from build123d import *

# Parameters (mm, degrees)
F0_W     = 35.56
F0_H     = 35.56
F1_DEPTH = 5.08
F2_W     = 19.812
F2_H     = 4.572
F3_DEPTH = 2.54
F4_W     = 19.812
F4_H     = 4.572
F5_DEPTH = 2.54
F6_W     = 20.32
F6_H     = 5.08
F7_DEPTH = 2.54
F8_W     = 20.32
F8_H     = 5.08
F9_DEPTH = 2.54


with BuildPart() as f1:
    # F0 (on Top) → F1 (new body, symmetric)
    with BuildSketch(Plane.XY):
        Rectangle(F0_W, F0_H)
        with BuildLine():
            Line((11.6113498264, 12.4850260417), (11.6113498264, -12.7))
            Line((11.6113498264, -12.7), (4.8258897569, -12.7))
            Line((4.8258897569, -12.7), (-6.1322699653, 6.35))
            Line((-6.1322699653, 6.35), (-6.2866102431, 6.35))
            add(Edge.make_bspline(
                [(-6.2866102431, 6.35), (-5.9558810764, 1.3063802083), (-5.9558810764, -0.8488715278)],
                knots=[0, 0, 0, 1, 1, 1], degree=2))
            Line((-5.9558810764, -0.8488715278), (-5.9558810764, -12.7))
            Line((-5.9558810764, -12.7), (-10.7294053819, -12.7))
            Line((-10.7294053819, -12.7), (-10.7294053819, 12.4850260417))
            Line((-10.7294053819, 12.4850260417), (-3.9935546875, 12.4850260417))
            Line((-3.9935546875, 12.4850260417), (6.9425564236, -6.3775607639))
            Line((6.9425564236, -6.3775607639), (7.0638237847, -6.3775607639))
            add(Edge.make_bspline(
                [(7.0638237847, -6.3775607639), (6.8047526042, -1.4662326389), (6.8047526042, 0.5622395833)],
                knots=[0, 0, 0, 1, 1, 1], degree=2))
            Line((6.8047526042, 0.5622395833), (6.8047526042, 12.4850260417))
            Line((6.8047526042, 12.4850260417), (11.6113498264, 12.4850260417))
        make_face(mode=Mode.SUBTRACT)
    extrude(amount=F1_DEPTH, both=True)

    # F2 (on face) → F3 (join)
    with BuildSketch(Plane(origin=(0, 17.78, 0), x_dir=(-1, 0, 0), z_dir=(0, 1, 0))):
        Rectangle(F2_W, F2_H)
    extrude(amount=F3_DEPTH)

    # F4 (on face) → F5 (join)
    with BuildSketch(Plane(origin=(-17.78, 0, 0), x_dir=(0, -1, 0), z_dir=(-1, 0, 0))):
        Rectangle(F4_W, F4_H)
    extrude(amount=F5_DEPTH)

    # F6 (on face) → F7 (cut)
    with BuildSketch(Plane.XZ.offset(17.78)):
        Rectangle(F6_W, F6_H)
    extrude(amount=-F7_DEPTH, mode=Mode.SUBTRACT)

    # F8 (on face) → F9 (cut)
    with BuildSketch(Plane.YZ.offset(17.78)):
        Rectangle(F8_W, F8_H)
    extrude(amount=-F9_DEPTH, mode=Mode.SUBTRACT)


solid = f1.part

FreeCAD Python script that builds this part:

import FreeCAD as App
import Part
import Sketcher
Q = App.Units.Quantity

doc = App.newDocument("Part")
params = doc.addObject("Spreadsheet::Sheet", "Params")
for row, (alias, value) in enumerate([
    ("sketch1_width", "1.4 in"),
    ("pad1_length", "0.4 in"),
    ("sketch2_width", "0.78 in"),
    ("sketch2_height", "0.18 in"),
    ("pad2_length", "0.1 in"),
    ("sketch3_width", "0.78 in"),
    ("sketch3_height", "0.18 in"),
    ("pad3_length", "0.1 in"),
    ("sketch4_width", "0.8 in"),
    ("sketch4_height", "0.2 in"),
    ("pocket1_length", "0.1 in"),
    ("sketch5_width", "0.8 in"),
    ("sketch5_height", "0.2 in"),
    ("pocket2_length", "0.1 in"),
], start=1):
    params.set(f"A{row}", alias)
    params.set(f"B{row}", "=" + value)
    params.setAlias(f"B{row}", alias)

body = doc.addObject("PartDesign::Body", "Body")

sketch1 = body.newObject("Sketcher::SketchObject", "Sketch")
sketch1.AttachmentSupport = (doc.getObject("XY_Plane"), [""])
sketch1.MapMode = "FlatFace"
sketch1.addGeometry([
    Part.LineSegment(App.Vector(-17.78, 17.78, 0), App.Vector(-17.78, -17.78, 0)),
    Part.LineSegment(App.Vector(-17.78, -17.78, 0), App.Vector(17.78, -17.78, 0)),
    Part.LineSegment(App.Vector(17.78, -17.78, 0), App.Vector(17.78, 17.78, 0)),
    Part.LineSegment(App.Vector(17.78, 17.78, 0), App.Vector(-17.78, 17.78, 0)),
    Part.LineSegment(App.Vector(6.804753, 12.485026, 0), App.Vector(11.61135, 12.485026, 0)),
    Part.LineSegment(App.Vector(11.61135, 12.485026, 0), App.Vector(11.61135, -12.7, 0)),
    Part.LineSegment(App.Vector(11.61135, -12.7, 0), App.Vector(4.82589, -12.7, 0)),
    Part.LineSegment(App.Vector(4.82589, -12.7, 0), App.Vector(-6.13227, 6.35, 0)),
    Part.LineSegment(App.Vector(-6.13227, 6.35, 0), App.Vector(-6.28661, 6.35, 0)),
    Part.BSplineCurve([App.Vector(-6.28661, 6.35, 0), App.Vector(-5.955881, 1.30638, 0), App.Vector(-5.955881, -0.848872, 0)], [3, 3], [0, 1], False, 2, [1, 1, 1], False),
    Part.LineSegment(App.Vector(-5.955881, -0.848872, 0), App.Vector(-5.955881, -12.7, 0)),
    Part.LineSegment(App.Vector(-5.955881, -12.7, 0), App.Vector(-10.729405, -12.7, 0)),
    Part.LineSegment(App.Vector(-10.729405, -12.7, 0), App.Vector(-10.729405, 12.485026, 0)),
    Part.LineSegment(App.Vector(-10.729405, 12.485026, 0), App.Vector(-3.993555, 12.485026, 0)),
    Part.LineSegment(App.Vector(-3.993555, 12.485026, 0), App.Vector(6.942556, -6.377561, 0)),
    Part.LineSegment(App.Vector(6.942556, -6.377561, 0), App.Vector(7.063824, -6.377561, 0)),
    Part.BSplineCurve([App.Vector(7.063824, -6.377561, 0), App.Vector(6.804753, -1.466233, 0), App.Vector(6.804753, 0.56224, 0)], [3, 3], [0, 1], False, 2, [1, 1, 1], False),
    Part.LineSegment(App.Vector(6.804753, 0.56224, 0), App.Vector(6.804753, 12.485026, 0)),
], False)
sketch1.addConstraint([
    Sketcher.Constraint("Block", 9),
    Sketcher.Constraint("Block", 16),
    Sketcher.Constraint("Coincident", 0, 2, 1, 1),
    Sketcher.Constraint("Coincident", 1, 2, 2, 1),
    Sketcher.Constraint("Coincident", 2, 2, 3, 1),
    Sketcher.Constraint("Coincident", 3, 2, 0, 1),
    Sketcher.Constraint("Coincident", 4, 2, 5, 1),
    Sketcher.Constraint("Coincident", 5, 2, 6, 1),
    Sketcher.Constraint("Coincident", 6, 2, 7, 1),
    Sketcher.Constraint("Coincident", 7, 2, 8, 1),
    Sketcher.Constraint("Coincident", 8, 2, 9, 1),
    Sketcher.Constraint("Coincident", 9, 2, 10, 1),
    Sketcher.Constraint("Coincident", 10, 2, 11, 1),
    Sketcher.Constraint("Coincident", 11, 2, 12, 1),
    Sketcher.Constraint("Coincident", 12, 2, 13, 1),
    Sketcher.Constraint("Coincident", 13, 2, 14, 1),
    Sketcher.Constraint("Coincident", 14, 2, 15, 1),
    Sketcher.Constraint("Coincident", 15, 2, 16, 1),
    Sketcher.Constraint("Coincident", 16, 2, 17, 1),
    Sketcher.Constraint("Coincident", 17, 2, 4, 1),
    Sketcher.Constraint("Vertical", 0),
    Sketcher.Constraint("Horizontal", 1),
    Sketcher.Constraint("Vertical", 2),
    Sketcher.Constraint("Horizontal", 3),
    Sketcher.Constraint("Horizontal", 4),
    Sketcher.Constraint("Vertical", 5),
    Sketcher.Constraint("Horizontal", 6),
    Sketcher.Constraint("Horizontal", 8),
    Sketcher.Constraint("Vertical", 10),
    Sketcher.Constraint("Horizontal", 11),
    Sketcher.Constraint("Vertical", 12),
    Sketcher.Constraint("Horizontal", 13),
    Sketcher.Constraint("Horizontal", 15),
    Sketcher.Constraint("Vertical", 17),
    Sketcher.Constraint("Symmetric", 0, 2, 2, 2, -1, 1),
    Sketcher.Constraint("Horizontal", 6, 2, 10, 2),
    Sketcher.Constraint("Horizontal", 4, 2, 12, 2),
    Sketcher.Constraint("Equal", 3, 0),
    Sketcher.Constraint("DistanceX", 1, 1, 1, 2, Q("1.4 in")),
    Sketcher.Constraint("DistanceY", 5, 2, -1, 1, Q("0.5 in")),
    Sketcher.Constraint("DistanceX", 8, 2, 6, 2, Q("0.4375 in")),
    Sketcher.Constraint("DistanceX", 6, 2, 6, 1, Q("6.78546 mm")),
    Sketcher.Constraint("DistanceX", 8, 2, 8, 1, Q("0.15434 mm")),
    Sketcher.Constraint("DistanceX", 13, 1, 13, 2, Q("6.735851 mm")),
    Sketcher.Constraint("Distance", 14, Q("21.803571 mm")),
    Sketcher.Constraint("DistanceX", 11, 2, 11, 1, Q("4.773524 mm")),
    Sketcher.Constraint("DistanceX", 15, 1, 15, 2, Q("0.121267 mm")),
])
sketch1.setExpression("Constraints[38]", "Params.sketch1_width")
pad1 = body.newObject("PartDesign::Pad", "Pad")
pad1.Profile = sketch1
pad1.setExpression("Length", "Params.pad1_length")
pad1.Midplane = True

sketch2 = body.newObject("Sketcher::SketchObject", "Sketch001")
sketch2.AttachmentSupport = (doc.getObject("XZ_Plane"), [""])
sketch2.MapMode = "FlatFace"
sketch2.AttachmentOffset = App.Placement(App.Vector(0, 0, -0.7 * 25.4), App.Rotation())
sketch2.addGeometry([
    Part.LineSegment(App.Vector(9.9, 2.3, 0), App.Vector(9.9, -2.3, 0)),
    Part.LineSegment(App.Vector(9.9, -2.3, 0), App.Vector(-9.9, -2.3, 0)),
    Part.LineSegment(App.Vector(-9.9, -2.3, 0), App.Vector(-9.9, 2.3, 0)),
    Part.LineSegment(App.Vector(-9.9, 2.3, 0), App.Vector(9.9, 2.3, 0)),
], False)
sketch2.addConstraint([
    Sketcher.Constraint("Coincident", 0, 2, 1, 1),
    Sketcher.Constraint("Coincident", 1, 2, 2, 1),
    Sketcher.Constraint("Coincident", 2, 2, 3, 1),
    Sketcher.Constraint("Coincident", 3, 2, 0, 1),
    Sketcher.Constraint("Vertical", 0),
    Sketcher.Constraint("Horizontal", 1),
    Sketcher.Constraint("Vertical", 2),
    Sketcher.Constraint("Horizontal", 3),
    Sketcher.Constraint("Symmetric", 0, 2, 2, 2, -1, 1),
    Sketcher.Constraint("DistanceX", 1, 2, 1, 1, Q("0.78 in")),
    Sketcher.Constraint("DistanceY", 0, 2, 0, 1, Q("0.18 in")),
])
sketch2.setExpression("Constraints[9]", "Params.sketch2_width")
sketch2.setExpression("Constraints[10]", "Params.sketch2_height")
pad2 = body.newObject("PartDesign::Pad", "Pad001")
pad2.Profile = sketch2
pad2.setExpression("Length", "Params.pad2_length")
pad2.Reversed = True

sketch3 = body.newObject("Sketcher::SketchObject", "Sketch002")
sketch3.AttachmentSupport = (doc.getObject("YZ_Plane"), [""])
sketch3.MapMode = "FlatFace"
sketch3.AttachmentOffset = App.Placement(App.Vector(0, 0, -0.7 * 25.4), App.Rotation())
sketch3.addGeometry([
    Part.LineSegment(App.Vector(9.9, 2.3, 0), App.Vector(9.9, -2.3, 0)),
    Part.LineSegment(App.Vector(9.9, -2.3, 0), App.Vector(-9.9, -2.3, 0)),
    Part.LineSegment(App.Vector(-9.9, -2.3, 0), App.Vector(-9.9, 2.3, 0)),
    Part.LineSegment(App.Vector(-9.9, 2.3, 0), App.Vector(9.9, 2.3, 0)),
], False)
sketch3.addConstraint([
    Sketcher.Constraint("Coincident", 0, 2, 1, 1),
    Sketcher.Constraint("Coincident", 1, 2, 2, 1),
    Sketcher.Constraint("Coincident", 2, 2, 3, 1),
    Sketcher.Constraint("Coincident", 3, 2, 0, 1),
    Sketcher.Constraint("Vertical", 0),
    Sketcher.Constraint("Horizontal", 1),
    Sketcher.Constraint("Vertical", 2),
    Sketcher.Constraint("Horizontal", 3),
    Sketcher.Constraint("Symmetric", 0, 2, 2, 2, -1, 1),
    Sketcher.Constraint("DistanceX", 1, 2, 1, 1, Q("0.78 in")),
    Sketcher.Constraint("DistanceY", 0, 2, 0, 1, Q("0.18 in")),
])
sketch3.setExpression("Constraints[9]", "Params.sketch3_width")
sketch3.setExpression("Constraints[10]", "Params.sketch3_height")
pad3 = body.newObject("PartDesign::Pad", "Pad002")
pad3.Profile = sketch3
pad3.setExpression("Length", "Params.pad3_length")
pad3.Reversed = True

sketch4 = body.newObject("Sketcher::SketchObject", "Sketch003")
sketch4.AttachmentSupport = (doc.getObject("XZ_Plane"), [""])
sketch4.MapMode = "FlatFace"
sketch4.AttachmentOffset = App.Placement(App.Vector(0, 0, 0.7 * 25.4), App.Rotation())
sketch4.addGeometry([
    Part.LineSegment(App.Vector(-10, 3, 0), App.Vector(-10, -3, 0)),
    Part.LineSegment(App.Vector(-10, -3, 0), App.Vector(10, -3, 0)),
    Part.LineSegment(App.Vector(10, -3, 0), App.Vector(10, 3, 0)),
    Part.LineSegment(App.Vector(10, 3, 0), App.Vector(-10, 3, 0)),
], False)
sketch4.addConstraint([
    Sketcher.Constraint("Coincident", 0, 2, 1, 1),
    Sketcher.Constraint("Coincident", 1, 2, 2, 1),
    Sketcher.Constraint("Coincident", 2, 2, 3, 1),
    Sketcher.Constraint("Coincident", 3, 2, 0, 1),
    Sketcher.Constraint("Vertical", 0),
    Sketcher.Constraint("Horizontal", 1),
    Sketcher.Constraint("Vertical", 2),
    Sketcher.Constraint("Horizontal", 3),
    Sketcher.Constraint("Symmetric", 0, 2, 2, 2, -1, 1),
    Sketcher.Constraint("DistanceX", 1, 1, 1, 2, Q("0.8 in")),
    Sketcher.Constraint("DistanceY", 0, 2, 0, 1, Q("0.2 in")),
])
sketch4.setExpression("Constraints[9]", "Params.sketch4_width")
sketch4.setExpression("Constraints[10]", "Params.sketch4_height")
pocket1 = body.newObject("PartDesign::Pocket", "Pocket")
pocket1.Profile = sketch4
pocket1.setExpression("Length", "Params.pocket1_length")

sketch5 = body.newObject("Sketcher::SketchObject", "Sketch004")
sketch5.AttachmentSupport = (doc.getObject("YZ_Plane"), [""])
sketch5.MapMode = "FlatFace"
sketch5.AttachmentOffset = App.Placement(App.Vector(0, 0, 0.7 * 25.4), App.Rotation())
sketch5.addGeometry([
    Part.LineSegment(App.Vector(-10, 3, 0), App.Vector(-10, -3, 0)),
    Part.LineSegment(App.Vector(-10, -3, 0), App.Vector(10, -3, 0)),
    Part.LineSegment(App.Vector(10, -3, 0), App.Vector(10, 3, 0)),
    Part.LineSegment(App.Vector(10, 3, 0), App.Vector(-10, 3, 0)),
], False)
sketch5.addConstraint([
    Sketcher.Constraint("Coincident", 0, 2, 1, 1),
    Sketcher.Constraint("Coincident", 1, 2, 2, 1),
    Sketcher.Constraint("Coincident", 2, 2, 3, 1),
    Sketcher.Constraint("Coincident", 3, 2, 0, 1),
    Sketcher.Constraint("Vertical", 0),
    Sketcher.Constraint("Horizontal", 1),
    Sketcher.Constraint("Vertical", 2),
    Sketcher.Constraint("Horizontal", 3),
    Sketcher.Constraint("Symmetric", 0, 2, 2, 2, -1, 1),
    Sketcher.Constraint("DistanceX", 1, 1, 1, 2, Q("0.8 in")),
    Sketcher.Constraint("DistanceY", 0, 2, 0, 1, Q("0.2 in")),
])
sketch5.setExpression("Constraints[9]", "Params.sketch5_width")
sketch5.setExpression("Constraints[10]", "Params.sketch5_height")
pocket2 = body.newObject("PartDesign::Pocket", "Pocket001")
pocket2.Profile = sketch5
pocket2.setExpression("Length", "Params.pocket2_length")

doc.recompute()
